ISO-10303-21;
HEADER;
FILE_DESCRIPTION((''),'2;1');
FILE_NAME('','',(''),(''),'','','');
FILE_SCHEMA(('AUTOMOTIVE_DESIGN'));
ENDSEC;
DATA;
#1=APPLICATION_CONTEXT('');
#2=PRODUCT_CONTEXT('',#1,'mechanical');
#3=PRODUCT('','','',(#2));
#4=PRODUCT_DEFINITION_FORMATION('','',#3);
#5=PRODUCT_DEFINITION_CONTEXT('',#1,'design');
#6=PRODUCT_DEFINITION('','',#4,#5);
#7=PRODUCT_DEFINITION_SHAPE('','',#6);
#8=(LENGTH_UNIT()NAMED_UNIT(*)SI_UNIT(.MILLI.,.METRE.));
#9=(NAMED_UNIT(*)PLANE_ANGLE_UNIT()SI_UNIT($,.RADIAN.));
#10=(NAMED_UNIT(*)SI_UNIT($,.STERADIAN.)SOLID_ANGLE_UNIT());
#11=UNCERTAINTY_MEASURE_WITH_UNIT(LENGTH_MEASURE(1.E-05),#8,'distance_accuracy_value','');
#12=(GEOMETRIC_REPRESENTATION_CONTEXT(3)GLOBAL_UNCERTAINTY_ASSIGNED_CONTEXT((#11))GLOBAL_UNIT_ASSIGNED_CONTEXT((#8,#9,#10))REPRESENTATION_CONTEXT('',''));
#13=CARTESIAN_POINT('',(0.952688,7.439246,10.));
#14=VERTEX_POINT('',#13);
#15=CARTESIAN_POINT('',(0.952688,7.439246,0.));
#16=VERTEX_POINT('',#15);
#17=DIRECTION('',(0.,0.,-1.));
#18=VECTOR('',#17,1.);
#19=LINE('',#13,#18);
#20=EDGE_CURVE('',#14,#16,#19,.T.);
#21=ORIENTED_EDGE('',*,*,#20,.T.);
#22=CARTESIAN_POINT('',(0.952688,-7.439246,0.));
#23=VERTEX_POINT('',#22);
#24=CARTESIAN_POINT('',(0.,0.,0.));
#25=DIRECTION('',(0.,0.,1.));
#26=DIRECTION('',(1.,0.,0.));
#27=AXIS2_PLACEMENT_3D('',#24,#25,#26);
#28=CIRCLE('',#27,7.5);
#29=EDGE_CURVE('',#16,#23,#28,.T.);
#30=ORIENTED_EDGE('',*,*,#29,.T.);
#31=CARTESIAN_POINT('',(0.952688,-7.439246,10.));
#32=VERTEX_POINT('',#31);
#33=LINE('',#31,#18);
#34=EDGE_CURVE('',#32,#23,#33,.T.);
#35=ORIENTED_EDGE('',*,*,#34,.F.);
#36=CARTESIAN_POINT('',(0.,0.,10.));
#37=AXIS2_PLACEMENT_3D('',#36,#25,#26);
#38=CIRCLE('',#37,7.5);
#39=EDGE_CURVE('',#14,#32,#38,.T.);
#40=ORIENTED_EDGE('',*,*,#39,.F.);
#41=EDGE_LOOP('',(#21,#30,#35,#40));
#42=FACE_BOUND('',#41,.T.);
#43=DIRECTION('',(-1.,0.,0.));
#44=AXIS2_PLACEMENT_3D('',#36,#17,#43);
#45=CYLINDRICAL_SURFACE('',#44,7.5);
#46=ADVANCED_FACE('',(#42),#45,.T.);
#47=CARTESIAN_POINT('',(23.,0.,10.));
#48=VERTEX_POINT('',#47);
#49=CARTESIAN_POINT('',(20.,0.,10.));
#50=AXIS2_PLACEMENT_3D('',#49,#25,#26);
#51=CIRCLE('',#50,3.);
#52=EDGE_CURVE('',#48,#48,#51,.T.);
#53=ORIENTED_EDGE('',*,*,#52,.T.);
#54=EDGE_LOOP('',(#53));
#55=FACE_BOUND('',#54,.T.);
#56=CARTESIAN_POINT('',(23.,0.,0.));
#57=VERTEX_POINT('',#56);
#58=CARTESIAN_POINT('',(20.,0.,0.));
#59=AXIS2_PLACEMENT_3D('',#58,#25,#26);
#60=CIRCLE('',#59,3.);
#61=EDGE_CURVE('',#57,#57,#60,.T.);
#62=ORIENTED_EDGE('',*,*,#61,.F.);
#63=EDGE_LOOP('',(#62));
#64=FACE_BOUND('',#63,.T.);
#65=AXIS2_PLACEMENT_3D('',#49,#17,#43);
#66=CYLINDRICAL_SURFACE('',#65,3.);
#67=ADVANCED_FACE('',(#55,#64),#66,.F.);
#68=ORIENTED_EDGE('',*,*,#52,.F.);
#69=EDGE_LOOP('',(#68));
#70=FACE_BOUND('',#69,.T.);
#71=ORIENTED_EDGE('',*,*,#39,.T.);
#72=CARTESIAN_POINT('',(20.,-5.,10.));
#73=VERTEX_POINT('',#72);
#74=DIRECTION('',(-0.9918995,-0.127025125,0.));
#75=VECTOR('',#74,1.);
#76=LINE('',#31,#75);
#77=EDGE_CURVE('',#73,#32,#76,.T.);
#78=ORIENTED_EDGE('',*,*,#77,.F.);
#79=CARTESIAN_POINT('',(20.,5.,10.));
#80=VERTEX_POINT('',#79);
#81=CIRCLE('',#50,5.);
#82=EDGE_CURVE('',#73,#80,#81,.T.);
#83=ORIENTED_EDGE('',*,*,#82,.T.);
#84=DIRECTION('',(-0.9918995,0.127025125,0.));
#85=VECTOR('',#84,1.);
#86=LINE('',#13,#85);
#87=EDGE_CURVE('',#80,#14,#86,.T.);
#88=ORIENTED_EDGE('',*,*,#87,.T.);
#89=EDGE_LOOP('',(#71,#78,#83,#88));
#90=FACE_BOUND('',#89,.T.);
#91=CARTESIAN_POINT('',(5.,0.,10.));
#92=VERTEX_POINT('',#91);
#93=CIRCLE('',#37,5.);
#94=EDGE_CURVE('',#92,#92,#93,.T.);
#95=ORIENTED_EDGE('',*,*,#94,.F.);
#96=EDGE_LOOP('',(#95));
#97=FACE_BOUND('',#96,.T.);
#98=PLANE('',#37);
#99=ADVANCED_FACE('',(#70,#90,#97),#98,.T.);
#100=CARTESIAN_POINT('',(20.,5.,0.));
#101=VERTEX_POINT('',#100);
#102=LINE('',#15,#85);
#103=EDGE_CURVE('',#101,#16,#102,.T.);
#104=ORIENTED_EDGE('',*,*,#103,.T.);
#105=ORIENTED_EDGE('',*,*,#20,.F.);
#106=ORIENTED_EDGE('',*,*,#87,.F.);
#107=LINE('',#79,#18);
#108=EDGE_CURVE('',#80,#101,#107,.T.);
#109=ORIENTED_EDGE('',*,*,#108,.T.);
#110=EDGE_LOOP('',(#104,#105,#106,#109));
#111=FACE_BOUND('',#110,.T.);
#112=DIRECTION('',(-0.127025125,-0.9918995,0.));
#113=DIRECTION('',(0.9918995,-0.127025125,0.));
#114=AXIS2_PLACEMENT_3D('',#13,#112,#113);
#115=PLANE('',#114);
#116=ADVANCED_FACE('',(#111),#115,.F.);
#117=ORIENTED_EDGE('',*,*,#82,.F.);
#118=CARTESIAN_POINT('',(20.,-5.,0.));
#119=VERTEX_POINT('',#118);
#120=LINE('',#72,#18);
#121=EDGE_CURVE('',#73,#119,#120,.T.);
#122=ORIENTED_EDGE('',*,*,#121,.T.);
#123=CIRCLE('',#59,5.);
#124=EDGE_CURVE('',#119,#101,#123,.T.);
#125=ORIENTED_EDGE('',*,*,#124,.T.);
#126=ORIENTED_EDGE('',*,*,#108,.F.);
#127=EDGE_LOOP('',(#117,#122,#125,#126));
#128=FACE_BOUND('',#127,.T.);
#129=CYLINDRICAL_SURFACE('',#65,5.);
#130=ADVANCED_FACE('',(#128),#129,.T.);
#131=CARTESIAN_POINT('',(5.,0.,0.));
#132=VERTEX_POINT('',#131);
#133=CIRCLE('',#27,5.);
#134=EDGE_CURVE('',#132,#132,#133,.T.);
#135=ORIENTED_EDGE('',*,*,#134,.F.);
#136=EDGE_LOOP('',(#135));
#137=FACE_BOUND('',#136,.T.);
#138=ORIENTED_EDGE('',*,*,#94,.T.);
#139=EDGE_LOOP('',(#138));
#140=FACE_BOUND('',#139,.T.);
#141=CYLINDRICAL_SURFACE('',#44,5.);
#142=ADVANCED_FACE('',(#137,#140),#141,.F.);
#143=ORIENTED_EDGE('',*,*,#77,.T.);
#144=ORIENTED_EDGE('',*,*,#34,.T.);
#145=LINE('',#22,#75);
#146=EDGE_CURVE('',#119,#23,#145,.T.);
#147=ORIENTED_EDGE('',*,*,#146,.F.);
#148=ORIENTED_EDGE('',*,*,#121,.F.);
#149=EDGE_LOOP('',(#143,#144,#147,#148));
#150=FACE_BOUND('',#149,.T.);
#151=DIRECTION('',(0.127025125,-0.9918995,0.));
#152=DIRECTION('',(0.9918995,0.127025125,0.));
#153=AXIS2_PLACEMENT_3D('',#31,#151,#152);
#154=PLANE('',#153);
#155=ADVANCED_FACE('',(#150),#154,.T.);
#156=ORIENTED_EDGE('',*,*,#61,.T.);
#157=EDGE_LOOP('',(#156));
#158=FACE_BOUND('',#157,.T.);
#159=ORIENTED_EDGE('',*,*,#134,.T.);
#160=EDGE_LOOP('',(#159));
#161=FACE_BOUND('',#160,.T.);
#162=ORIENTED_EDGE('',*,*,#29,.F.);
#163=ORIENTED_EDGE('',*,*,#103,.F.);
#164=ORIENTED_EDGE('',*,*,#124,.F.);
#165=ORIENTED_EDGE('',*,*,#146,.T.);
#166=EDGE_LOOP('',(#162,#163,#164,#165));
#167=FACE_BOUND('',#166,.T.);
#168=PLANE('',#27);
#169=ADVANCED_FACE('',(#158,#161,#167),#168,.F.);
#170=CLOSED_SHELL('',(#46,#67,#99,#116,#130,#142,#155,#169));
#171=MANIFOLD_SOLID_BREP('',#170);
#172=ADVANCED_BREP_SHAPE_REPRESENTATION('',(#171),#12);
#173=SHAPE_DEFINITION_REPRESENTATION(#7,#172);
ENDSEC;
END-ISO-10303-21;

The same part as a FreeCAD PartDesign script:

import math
import FreeCAD as App
import Part
import Sketcher
from FreeCAD import Vector
Q = App.Units.Quantity

doc = App.newDocument("Part")
body = doc.addObject("PartDesign::Body", "Body")

# Sketch on XY plane
sketch1 = body.newObject("Sketcher::SketchObject", "Sketch")
sketch1.AttachmentSupport = (doc.getObject("XY_Plane"), [""])
sketch1.MapMode = "FlatFace"
sketch1.addGeometry(Part.ArcOfCircle(Part.Circle(Vector(0, 0, 0), Vector(0, 0, 1), 7.5), math.radians(82.702281), math.radians(277.297719)), False)
sketch1.addGeometry(Part.LineSegment(Vector(0.952688, -7.439246, 0), Vector(20, -5, 0)), False)
sketch1.addGeometry(Part.ArcOfCircle(Part.Circle(Vector(20, 0, 0), Vector(0, 0, 1), 5), math.radians(-90), math.radians(90)), False)
sketch1.addGeometry(Part.LineSegment(Vector(20, 5, 0), Vector(0.952688, 7.439246, 0)), False)
sketch1.addGeometry(Part.Circle(Vector(0, 0, 0), Vector(0, 0, 1), 5), False)
sketch1.addGeometry(Part.Circle(Vector(20, 0, 0), Vector(0, 0, 1), 3), False)
sketch1.addConstraint(Sketcher.Constraint("Tangent", 0, 2, 1, 1))
sketch1.addConstraint(Sketcher.Constraint("Coincident", 1, 2, 2, 1))
sketch1.addConstraint(Sketcher.Constraint("Coincident", 2, 2, 3, 1))
sketch1.addConstraint(Sketcher.Constraint("Tangent", 3, 2, 0, 1))
sketch1.addConstraint(Sketcher.Constraint("Coincident", 0, 3, -1, 1))
sketch1.addConstraint(Sketcher.Constraint("Coincident", 4, 3, -1, 1))
sketch1.addConstraint(Sketcher.Constraint("Coincident", 5, 3, 2, 3))
sketch1.addConstraint(Sketcher.Constraint("Equal", 2, 4))
sketch1.addConstraint(Sketcher.Constraint("Symmetric", 1, 2, 2, 2, -1))
sketch1.addConstraint(Sketcher.Constraint("Vertical", 5, 3, 1, 2))
sketch1.addConstraint(Sketcher.Constraint("Diameter", 4, Q("10 mm")))
sketch1.addConstraint(Sketcher.Constraint("Diameter", 5, Q("6 mm")))
sketch1.addConstraint(Sketcher.Constraint("Radius", 0, Q("7.5 mm")))
sketch1.addConstraint(Sketcher.Constraint("DistanceX", -1, 1, 2, 3, Q("20 mm")))
pad1 = body.newObject("PartDesign::Pad", "Pad")
pad1.Profile = sketch1
pad1.Length = 10

doc.recompute()
